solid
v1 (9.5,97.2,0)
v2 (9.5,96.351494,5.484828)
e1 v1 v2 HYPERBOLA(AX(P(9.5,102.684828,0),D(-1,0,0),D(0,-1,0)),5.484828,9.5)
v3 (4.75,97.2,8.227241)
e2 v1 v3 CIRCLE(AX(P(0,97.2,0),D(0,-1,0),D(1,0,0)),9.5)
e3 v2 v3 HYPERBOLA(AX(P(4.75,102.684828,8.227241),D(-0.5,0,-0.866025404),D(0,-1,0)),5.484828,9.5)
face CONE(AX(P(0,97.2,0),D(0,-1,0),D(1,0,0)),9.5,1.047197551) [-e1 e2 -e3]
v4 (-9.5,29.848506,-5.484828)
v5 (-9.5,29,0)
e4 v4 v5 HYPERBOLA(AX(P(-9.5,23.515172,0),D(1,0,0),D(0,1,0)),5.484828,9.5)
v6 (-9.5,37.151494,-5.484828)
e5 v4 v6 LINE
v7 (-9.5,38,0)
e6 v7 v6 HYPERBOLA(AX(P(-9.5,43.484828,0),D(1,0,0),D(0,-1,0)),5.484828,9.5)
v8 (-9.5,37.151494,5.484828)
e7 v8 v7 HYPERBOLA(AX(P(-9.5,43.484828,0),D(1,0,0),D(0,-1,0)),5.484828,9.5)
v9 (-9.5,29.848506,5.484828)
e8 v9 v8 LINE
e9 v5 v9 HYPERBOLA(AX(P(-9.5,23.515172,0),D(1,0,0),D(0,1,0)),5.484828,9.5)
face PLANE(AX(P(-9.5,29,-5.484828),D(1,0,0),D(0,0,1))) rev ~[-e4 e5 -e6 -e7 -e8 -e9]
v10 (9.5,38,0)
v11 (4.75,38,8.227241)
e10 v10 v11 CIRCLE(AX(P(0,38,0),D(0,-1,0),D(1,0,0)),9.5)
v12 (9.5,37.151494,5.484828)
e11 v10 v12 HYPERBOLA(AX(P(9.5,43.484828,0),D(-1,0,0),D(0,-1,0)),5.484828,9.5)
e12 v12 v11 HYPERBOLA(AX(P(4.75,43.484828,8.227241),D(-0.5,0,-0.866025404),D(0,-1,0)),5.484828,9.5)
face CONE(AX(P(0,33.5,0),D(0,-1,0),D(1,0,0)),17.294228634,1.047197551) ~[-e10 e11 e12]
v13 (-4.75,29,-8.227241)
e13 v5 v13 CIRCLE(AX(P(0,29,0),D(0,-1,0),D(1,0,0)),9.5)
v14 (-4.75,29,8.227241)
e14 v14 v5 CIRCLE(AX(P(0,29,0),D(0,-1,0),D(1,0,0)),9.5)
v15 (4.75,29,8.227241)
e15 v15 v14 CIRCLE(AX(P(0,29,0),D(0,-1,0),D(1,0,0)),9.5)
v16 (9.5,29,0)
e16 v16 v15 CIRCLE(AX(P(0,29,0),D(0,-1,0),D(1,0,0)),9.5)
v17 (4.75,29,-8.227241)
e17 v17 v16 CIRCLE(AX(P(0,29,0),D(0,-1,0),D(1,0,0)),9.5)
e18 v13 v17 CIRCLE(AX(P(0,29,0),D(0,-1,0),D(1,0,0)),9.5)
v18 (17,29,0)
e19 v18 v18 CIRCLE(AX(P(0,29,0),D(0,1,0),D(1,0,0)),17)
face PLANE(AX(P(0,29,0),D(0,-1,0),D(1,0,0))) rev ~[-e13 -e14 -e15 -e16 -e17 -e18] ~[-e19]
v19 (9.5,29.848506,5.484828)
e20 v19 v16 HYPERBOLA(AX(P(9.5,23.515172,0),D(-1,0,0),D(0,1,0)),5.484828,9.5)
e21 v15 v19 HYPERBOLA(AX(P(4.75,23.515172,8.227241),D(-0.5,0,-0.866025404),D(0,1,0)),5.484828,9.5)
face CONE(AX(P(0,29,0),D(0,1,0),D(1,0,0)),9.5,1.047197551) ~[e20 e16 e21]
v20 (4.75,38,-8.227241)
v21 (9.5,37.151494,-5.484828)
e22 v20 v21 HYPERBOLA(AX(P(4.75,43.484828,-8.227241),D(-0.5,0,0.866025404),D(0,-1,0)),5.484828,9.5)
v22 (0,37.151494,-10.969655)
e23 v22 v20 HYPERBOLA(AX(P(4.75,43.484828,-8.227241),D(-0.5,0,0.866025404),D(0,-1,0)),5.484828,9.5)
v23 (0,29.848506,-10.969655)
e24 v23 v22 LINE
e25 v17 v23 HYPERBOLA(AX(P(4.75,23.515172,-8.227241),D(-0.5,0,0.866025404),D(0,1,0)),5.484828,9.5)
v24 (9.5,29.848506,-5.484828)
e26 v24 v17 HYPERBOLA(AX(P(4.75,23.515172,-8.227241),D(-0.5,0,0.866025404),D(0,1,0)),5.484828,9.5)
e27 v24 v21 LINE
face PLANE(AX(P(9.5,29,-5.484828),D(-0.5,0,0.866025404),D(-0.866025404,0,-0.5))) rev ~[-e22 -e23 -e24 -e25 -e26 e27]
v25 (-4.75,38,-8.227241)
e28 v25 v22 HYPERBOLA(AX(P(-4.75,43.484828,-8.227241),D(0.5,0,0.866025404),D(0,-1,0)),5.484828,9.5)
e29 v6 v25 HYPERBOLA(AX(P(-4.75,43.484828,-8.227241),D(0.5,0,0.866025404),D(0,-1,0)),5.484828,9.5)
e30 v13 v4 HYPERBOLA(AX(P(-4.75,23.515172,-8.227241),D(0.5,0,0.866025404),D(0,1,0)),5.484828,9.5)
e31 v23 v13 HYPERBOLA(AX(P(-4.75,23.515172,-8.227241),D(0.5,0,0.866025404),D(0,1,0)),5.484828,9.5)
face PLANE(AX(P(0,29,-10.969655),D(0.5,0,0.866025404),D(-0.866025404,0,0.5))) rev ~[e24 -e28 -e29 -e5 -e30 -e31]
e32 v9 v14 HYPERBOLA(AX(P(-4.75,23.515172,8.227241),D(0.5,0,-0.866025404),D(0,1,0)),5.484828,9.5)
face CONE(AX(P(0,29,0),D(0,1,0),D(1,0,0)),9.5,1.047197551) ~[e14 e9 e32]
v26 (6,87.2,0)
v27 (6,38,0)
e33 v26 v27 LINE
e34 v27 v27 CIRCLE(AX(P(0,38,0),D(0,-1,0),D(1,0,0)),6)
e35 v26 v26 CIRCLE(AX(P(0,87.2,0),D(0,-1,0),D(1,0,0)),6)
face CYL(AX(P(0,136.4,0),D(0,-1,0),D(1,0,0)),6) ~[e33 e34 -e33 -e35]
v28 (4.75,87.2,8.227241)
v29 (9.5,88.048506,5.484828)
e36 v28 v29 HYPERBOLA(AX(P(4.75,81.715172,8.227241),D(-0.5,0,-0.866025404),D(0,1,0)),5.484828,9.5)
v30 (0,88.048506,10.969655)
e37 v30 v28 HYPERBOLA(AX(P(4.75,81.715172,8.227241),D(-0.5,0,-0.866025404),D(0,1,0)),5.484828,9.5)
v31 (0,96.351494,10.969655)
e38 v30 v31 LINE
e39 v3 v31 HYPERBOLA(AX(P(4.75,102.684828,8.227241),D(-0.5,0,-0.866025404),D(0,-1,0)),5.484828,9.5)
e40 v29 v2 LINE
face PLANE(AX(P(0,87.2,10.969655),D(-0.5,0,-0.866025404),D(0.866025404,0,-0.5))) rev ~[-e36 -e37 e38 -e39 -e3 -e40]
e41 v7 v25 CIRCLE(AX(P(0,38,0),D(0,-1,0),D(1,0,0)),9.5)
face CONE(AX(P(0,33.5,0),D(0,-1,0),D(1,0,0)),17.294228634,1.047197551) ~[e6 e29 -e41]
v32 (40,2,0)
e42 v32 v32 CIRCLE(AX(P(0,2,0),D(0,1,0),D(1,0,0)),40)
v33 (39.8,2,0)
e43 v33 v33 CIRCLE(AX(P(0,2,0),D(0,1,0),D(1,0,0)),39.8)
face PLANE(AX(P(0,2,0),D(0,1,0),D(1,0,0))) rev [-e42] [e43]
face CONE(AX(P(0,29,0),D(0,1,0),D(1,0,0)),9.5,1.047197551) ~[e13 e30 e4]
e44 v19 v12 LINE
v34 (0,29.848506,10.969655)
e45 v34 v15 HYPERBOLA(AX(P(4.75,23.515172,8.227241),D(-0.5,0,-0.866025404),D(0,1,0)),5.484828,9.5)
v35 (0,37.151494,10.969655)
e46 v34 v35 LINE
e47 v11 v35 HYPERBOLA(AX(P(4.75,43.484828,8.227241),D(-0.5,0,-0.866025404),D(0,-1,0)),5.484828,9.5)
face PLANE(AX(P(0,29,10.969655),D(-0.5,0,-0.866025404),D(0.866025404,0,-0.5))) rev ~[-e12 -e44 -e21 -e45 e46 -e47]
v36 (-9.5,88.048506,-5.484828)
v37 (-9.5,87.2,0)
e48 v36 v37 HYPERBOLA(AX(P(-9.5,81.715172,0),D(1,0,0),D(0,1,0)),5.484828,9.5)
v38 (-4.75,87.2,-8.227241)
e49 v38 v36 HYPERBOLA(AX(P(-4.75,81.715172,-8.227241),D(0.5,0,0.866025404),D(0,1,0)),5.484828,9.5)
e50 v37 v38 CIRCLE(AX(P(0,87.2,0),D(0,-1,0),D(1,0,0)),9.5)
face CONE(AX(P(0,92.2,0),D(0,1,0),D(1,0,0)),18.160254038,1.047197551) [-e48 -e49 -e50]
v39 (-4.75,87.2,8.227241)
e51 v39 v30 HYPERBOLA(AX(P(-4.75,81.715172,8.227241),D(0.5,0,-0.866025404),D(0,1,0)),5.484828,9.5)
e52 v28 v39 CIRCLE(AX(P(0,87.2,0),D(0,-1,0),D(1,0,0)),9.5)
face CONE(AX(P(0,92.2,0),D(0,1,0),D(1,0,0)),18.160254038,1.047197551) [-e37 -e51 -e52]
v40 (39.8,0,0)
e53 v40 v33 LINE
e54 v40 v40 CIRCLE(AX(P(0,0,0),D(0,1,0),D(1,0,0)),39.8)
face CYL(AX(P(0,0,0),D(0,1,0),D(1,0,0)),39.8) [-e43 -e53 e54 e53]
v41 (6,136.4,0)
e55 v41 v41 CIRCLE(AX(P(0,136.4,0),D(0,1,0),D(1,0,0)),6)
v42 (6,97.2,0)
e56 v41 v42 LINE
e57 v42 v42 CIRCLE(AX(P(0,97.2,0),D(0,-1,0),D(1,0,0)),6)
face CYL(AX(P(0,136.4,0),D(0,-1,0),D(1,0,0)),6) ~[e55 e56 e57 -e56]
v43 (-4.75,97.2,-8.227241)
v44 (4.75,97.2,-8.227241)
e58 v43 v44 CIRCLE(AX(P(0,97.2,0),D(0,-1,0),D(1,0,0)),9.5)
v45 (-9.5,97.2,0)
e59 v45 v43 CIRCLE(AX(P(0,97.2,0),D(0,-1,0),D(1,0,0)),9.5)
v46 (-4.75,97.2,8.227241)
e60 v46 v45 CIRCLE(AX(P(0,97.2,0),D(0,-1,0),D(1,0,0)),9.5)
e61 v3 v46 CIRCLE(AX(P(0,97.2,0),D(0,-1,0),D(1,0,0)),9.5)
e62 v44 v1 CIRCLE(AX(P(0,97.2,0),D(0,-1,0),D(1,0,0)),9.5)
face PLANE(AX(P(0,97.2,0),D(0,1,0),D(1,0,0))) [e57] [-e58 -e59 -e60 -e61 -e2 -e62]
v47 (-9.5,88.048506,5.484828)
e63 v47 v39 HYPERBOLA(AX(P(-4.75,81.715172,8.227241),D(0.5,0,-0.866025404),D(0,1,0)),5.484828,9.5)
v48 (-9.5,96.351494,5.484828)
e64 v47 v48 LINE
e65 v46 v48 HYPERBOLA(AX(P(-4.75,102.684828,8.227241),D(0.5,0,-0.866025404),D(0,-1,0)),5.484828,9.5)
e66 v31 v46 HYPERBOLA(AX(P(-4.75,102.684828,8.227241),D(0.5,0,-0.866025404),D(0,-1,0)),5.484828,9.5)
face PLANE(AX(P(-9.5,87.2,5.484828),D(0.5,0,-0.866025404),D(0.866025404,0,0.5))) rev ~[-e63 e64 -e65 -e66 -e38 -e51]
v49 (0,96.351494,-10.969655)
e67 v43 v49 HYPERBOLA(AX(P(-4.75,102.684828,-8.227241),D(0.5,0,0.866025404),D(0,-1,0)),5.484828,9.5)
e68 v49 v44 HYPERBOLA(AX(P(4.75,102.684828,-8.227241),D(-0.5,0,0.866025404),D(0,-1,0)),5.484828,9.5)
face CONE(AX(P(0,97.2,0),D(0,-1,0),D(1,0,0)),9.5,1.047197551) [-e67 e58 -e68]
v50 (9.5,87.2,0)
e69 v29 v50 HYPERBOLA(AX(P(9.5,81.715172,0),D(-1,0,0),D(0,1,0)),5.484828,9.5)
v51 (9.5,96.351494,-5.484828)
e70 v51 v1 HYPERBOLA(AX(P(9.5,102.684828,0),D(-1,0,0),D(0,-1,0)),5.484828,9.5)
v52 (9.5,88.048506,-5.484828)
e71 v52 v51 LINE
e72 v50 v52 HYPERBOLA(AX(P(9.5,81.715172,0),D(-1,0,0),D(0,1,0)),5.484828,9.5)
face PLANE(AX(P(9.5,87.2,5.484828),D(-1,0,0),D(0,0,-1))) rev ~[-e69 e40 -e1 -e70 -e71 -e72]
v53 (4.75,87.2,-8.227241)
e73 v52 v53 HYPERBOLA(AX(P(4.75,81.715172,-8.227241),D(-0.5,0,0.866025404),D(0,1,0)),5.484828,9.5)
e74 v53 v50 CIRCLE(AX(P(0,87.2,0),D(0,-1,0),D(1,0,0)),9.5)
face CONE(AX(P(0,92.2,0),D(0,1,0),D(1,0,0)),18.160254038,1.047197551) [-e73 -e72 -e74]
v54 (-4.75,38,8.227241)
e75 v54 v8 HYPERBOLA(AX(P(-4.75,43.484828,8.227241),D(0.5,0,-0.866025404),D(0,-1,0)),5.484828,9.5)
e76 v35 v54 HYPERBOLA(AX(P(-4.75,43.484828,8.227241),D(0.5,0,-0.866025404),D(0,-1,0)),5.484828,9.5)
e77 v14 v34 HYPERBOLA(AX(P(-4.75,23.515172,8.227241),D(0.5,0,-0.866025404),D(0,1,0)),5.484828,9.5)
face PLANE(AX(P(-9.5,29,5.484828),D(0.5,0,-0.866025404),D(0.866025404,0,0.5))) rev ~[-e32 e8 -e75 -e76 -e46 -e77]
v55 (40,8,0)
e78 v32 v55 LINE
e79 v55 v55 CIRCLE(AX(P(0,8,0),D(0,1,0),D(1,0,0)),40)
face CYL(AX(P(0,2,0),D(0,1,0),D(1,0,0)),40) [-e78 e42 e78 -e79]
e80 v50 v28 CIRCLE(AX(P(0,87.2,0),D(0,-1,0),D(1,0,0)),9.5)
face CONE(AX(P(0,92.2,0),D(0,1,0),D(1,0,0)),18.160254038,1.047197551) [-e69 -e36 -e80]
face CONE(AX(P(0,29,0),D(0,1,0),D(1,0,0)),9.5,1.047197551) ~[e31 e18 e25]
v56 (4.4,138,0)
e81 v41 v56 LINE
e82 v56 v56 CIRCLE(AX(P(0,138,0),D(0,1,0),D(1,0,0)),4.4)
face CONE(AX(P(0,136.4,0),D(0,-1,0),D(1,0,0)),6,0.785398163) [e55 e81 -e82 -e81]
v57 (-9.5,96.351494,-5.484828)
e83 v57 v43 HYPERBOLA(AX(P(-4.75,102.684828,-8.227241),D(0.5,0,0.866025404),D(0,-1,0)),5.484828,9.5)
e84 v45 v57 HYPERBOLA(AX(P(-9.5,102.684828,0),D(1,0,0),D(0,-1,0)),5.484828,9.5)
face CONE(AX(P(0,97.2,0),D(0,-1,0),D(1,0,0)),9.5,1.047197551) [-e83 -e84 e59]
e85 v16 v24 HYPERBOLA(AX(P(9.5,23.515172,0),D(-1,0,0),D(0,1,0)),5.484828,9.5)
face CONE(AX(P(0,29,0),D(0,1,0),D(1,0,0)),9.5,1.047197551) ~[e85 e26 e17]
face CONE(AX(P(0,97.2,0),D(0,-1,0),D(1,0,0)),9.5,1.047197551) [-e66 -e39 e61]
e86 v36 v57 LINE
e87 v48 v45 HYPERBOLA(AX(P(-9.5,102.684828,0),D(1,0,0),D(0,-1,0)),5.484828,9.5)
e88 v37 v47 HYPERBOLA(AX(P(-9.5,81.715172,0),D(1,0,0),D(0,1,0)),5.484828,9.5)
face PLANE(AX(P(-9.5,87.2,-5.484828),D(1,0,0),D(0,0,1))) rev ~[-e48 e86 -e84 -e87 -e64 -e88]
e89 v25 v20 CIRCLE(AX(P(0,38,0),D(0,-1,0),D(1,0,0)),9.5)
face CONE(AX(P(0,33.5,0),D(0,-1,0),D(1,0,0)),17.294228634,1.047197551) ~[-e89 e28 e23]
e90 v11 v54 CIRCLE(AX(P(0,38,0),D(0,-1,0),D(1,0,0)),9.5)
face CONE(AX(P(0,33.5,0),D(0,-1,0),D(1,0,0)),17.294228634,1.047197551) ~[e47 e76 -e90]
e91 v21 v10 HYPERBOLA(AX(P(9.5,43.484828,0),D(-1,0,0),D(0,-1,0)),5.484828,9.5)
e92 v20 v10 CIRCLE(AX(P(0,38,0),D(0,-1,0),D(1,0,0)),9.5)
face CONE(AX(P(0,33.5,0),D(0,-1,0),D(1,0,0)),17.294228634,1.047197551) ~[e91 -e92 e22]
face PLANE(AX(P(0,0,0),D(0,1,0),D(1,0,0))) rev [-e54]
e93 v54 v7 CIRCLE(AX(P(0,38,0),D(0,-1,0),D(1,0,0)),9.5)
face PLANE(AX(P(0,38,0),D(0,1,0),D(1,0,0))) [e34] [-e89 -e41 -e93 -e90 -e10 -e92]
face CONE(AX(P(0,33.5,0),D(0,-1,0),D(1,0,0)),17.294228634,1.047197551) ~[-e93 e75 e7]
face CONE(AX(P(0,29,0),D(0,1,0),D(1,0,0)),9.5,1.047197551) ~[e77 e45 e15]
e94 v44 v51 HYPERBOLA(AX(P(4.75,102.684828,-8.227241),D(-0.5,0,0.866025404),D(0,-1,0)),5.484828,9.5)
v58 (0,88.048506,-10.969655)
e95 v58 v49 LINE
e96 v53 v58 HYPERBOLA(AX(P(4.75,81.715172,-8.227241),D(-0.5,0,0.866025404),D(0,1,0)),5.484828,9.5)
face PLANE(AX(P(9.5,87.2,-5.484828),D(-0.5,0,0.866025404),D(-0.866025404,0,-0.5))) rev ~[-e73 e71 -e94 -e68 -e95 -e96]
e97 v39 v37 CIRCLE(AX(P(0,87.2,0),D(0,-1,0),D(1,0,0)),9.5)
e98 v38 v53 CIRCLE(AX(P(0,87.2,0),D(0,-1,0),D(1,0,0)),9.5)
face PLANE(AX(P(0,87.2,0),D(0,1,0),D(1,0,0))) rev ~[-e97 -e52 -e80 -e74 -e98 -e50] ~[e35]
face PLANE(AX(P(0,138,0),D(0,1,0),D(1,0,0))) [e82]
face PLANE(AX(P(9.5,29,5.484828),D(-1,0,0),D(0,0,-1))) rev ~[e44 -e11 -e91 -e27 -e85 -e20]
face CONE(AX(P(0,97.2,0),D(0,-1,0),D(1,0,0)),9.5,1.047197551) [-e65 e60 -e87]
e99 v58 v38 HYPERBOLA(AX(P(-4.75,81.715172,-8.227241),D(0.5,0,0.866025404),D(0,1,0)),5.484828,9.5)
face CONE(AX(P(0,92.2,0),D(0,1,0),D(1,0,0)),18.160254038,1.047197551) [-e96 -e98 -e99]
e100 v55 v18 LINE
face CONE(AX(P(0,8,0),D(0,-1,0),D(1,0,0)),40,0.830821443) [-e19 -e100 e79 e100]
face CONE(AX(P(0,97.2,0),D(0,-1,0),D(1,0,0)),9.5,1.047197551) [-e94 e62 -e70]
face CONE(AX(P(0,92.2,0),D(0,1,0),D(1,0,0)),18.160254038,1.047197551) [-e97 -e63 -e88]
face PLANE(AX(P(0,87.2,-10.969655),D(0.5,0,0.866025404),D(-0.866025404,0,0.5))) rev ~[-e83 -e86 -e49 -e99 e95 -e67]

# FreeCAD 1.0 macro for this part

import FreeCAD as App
import Part
import Sketcher
Q = App.Units.Quantity


def add_polygon(sketch, points):
    """Adds a closed chain of lines whose ends are joined by coincident constraints."""
    first, n = sketch.GeometryCount, len(points)
    for a, b in zip(points, points[1:] + points[:1]):
        sketch.addGeometry(Part.LineSegment(App.Vector(*a, 0), App.Vector(*b, 0)), False)
    for i in range(n):
        sketch.addConstraint(Sketcher.Constraint("Coincident", first + i, 2, first + (i + 1) % n, 1))

doc = App.newDocument("Part")
body = doc.addObject("PartDesign::Body", "Body")

sketch1 = body.newObject("Sketcher::SketchObject", "Sketch")
sketch1.AttachmentSupport = (doc.getObject("XY_Plane"), [""])
sketch1.MapMode = "FlatFace"
add_polygon(sketch1, [(-39.8, 0), (0, 0), (0, 138), (-4.4, 138), (-6, 136.4), (-6, 29), (-17, 29), (-40, 8), (-40, 2), (-39.8, 2)])
sketch1.addConstraint(Sketcher.Constraint("Horizontal", 0))
sketch1.addConstraint(Sketcher.Constraint("Vertical", 1))
sketch1.addConstraint(Sketcher.Constraint("Horizontal", 2))
sketch1.addConstraint(Sketcher.Constraint("Vertical", 4))
sketch1.addConstraint(Sketcher.Constraint("Horizontal", 5))
sketch1.addConstraint(Sketcher.Constraint("Vertical", 7))
sketch1.addConstraint(Sketcher.Constraint("Horizontal", 8))
sketch1.addConstraint(Sketcher.Constraint("Vertical", 9))
sketch1.addConstraint(Sketcher.Constraint("Coincident", 0, 2, -1, 1))
sketch1.addConstraint(Sketcher.Constraint("DistanceX", 5, 2, 5, 1, Q("11 mm")))
sketch1.addConstraint(Sketcher.Constraint("DistanceY", 1, 1, 1, 2, Q("138 mm")))
sketch1.addConstraint(Sketcher.Constraint("DistanceY", 7, 2, 7, 1, Q("6 mm")))
sketch1.addConstraint(Sketcher.Constraint("DistanceY", 9, 2, 9, 1, Q("2 mm")))
sketch1.addConstraint(Sketcher.Constraint("Angle", 3, Q("-135 deg")))
sketch1.addConstraint(Sketcher.Constraint("DistanceX", 0, 1, 0, 2, Q("39.8 mm")))
sketch1.addConstraint(Sketcher.Constraint("DistanceX", 2, 2, 2, 1, Q("4.4 mm")))
sketch1.addConstraint(Sketcher.Constraint("DistanceX", 8, 1, 8, 2, Q("0.2 mm")))
sketch1.addConstraint(Sketcher.Constraint("DistanceY", 4, 2, 4, 1, Q("107.4 mm")))
sketch1.addConstraint(Sketcher.Constraint("DistanceX", 3, 2, -1, 1, Q("6 mm")))
revolution = body.newObject("PartDesign::Revolution", "Revolution")
revolution.Profile = sketch1
revolution.ReferenceAxis = (sketch1, ["V_Axis"])
revolution.Angle = 360

sketch2 = body.newObject("Sketcher::SketchObject", "Sketch001")
sketch2.AttachmentSupport = (doc.getObject("XZ_Plane"), [""])
sketch2.MapMode = "FlatFace"
sketch2.AttachmentOffset = App.Placement(App.Vector(0, 0, -29), App.Rotation())
add_polygon(sketch2, [(0, -11), (-10, -5), (-10, 5), (0, 11), (10, 5), (10, -5)])
sketch2.addConstraint(Sketcher.Constraint("Vertical", 1))
sketch2.addConstraint(Sketcher.Constraint("Vertical", 4))
sketch2.addConstraint(Sketcher.Constraint("Symmetric", 0, 2, 3, 2, -1, 1))
sketch2.addConstraint(Sketcher.Constraint("Symmetric", 2, 2, 5, 2, -1, 1))
sketch2.addConstraint(Sketcher.Constraint("PointOnObject", 2, 2, -2))
sketch2.addConstraint(Sketcher.Constraint("Parallel", 2, 5))
sketch2.addConstraint(Sketcher.Constraint("Horizontal", 1, 2, 3, 2))
sketch2.addConstraint(Sketcher.Constraint("Angle", 0, Q("150 deg")))
sketch2.addConstraint(Sketcher.Constraint("DistanceX", 1, 2, 3, 2, Q("19 mm")))
sketch2.addConstraint(Sketcher.Constraint("DistanceY", 1, 1, 1, 2, Q("10.969655 mm")))
pad1 = body.newObject("PartDesign::Pad", "Pad")
pad1.Profile = sketch2
pad1.Length = 9
pad1.Reversed = True

sketch3 = body.newObject("Sketcher::SketchObject", "Sketch002")
sketch3.AttachmentSupport = (doc.getObject("XZ_Plane"), [""])
sketch3.MapMode = "FlatFace"
sketch3.AttachmentOffset = App.Placement(App.Vector(0, 0, -87.2), App.Rotation())
add_polygon(sketch3, [(10, -5), (0, -11), (-10, -5), (-10, 5), (0, 11), (10, 5)])
sketch3.addConstraint(Sketcher.Constraint("Vertical", 2))
sketch3.addConstraint(Sketcher.Constraint("Vertical", 5))
sketch3.addConstraint(Sketcher.Constraint("Symmetric", 0, 2, 3, 2, -1, 1))
sketch3.addConstraint(Sketcher.Constraint("Symmetric", 1, 2, 4, 2, -1, 1))
sketch3.addConstraint(Sketcher.Constraint("PointOnObject", 0, 2, -2))
sketch3.addConstraint(Sketcher.Constraint("Parallel", 0, 3))
sketch3.addConstraint(Sketcher.Constraint("Horizontal", 2, 2, 4, 2))
sketch3.addConstraint(Sketcher.Constraint("Angle", 0, Q("-150 deg")))
sketch3.addConstraint(Sketcher.Constraint("DistanceX", 2, 2, 4, 2, Q("19 mm")))
sketch3.addConstraint(Sketcher.Constraint("DistanceY", 2, 1, 2, 2, Q("10.969655 mm")))
pad2 = body.newObject("PartDesign::Pad", "Pad001")
pad2.Profile = sketch3
pad2.Length = 10
pad2.Reversed = True

sketch4 = body.newObject("Sketcher::SketchObject", "Sketch003")
sketch4.AttachmentSupport = (doc.getObject("XY_Plane"), [""])
sketch4.MapMode = "FlatFace"
add_polygon(sketch4, [(-9.5, 97.2), (-18.2, 97.2), (-18.2, 92.2)])
add_polygon(sketch4, [(-18.2, 92.2), (-18.2, 87.2), (-9.5, 87.2)])
add_polygon(sketch4, [(-17.3, 38), (-17.3, 33.5), (-9.5, 38)])
add_polygon(sketch4, [(-17.3, 33.5), (-17.3, 29), (-9.5, 29)])
sketch4.addConstraint(Sketcher.Constraint("Horizontal", 0))
sketch4.addConstraint(Sketcher.Constraint("Vertical", 1))
sketch4.addConstraint(Sketcher.Constraint("Vertical", 3))
sketch4.addConstraint(Sketcher.Constraint("Horizontal", 4))
sketch4.addConstraint(Sketcher.Constraint("Vertical", 6))
sketch4.addConstraint(Sketcher.Constraint("Horizontal", 8))
sketch4.addConstraint(Sketcher.Constraint("Vertical", 9))
sketch4.addConstraint(Sketcher.Constraint("Horizontal", 10))
sketch4.addConstraint(Sketcher.Constraint("Coincident", 5, 2, 1, 2))
sketch4.addConstraint(Sketcher.Constraint("Coincident", 11, 2, 6, 2))
sketch4.addConstraint(Sketcher.Constraint("Parallel", 2, 7))
sketch4.addConstraint(Sketcher.Constraint("Parallel", 5, 11))
sketch4.addConstraint(Sketcher.Constraint("Vertical", 2, 2, 4, 2))
sketch4.addConstraint(Sketcher.Constraint("Vertical", 4, 2, 7, 2))
sketch4.addConstraint(Sketcher.Constraint("Vertical", 7, 2, 10, 2))
sketch4.addConstraint(Sketcher.Constraint("Equal", 1, 3))
sketch4.addConstraint(Sketcher.Constraint("DistanceY", 1, 2, 1, 1, Q("5 mm")))
sketch4.addConstraint(Sketcher.Constraint("Angle", 2, Q("30 deg")))
sketch4.addConstraint(Sketcher.Constraint("Distance", 7, Q("9 mm")))
sketch4.addConstraint(Sketcher.Constraint("DistanceY", -1, 1, 7, 2, Q("38 mm")))
sketch4.addConstraint(Sketcher.Constraint("DistanceY", -1, 1, 0, 2, Q("97.2 mm")))
sketch4.addConstraint(Sketcher.Constraint("DistanceX", 2, 2, -1, 1, Q("9.5 mm")))
groove = body.newObject("PartDesign::Groove", "Groove")
groove.Profile = sketch4
groove.ReferenceAxis = (sketch4, ["V_Axis"])
groove.Angle = 360

doc.recompute()
